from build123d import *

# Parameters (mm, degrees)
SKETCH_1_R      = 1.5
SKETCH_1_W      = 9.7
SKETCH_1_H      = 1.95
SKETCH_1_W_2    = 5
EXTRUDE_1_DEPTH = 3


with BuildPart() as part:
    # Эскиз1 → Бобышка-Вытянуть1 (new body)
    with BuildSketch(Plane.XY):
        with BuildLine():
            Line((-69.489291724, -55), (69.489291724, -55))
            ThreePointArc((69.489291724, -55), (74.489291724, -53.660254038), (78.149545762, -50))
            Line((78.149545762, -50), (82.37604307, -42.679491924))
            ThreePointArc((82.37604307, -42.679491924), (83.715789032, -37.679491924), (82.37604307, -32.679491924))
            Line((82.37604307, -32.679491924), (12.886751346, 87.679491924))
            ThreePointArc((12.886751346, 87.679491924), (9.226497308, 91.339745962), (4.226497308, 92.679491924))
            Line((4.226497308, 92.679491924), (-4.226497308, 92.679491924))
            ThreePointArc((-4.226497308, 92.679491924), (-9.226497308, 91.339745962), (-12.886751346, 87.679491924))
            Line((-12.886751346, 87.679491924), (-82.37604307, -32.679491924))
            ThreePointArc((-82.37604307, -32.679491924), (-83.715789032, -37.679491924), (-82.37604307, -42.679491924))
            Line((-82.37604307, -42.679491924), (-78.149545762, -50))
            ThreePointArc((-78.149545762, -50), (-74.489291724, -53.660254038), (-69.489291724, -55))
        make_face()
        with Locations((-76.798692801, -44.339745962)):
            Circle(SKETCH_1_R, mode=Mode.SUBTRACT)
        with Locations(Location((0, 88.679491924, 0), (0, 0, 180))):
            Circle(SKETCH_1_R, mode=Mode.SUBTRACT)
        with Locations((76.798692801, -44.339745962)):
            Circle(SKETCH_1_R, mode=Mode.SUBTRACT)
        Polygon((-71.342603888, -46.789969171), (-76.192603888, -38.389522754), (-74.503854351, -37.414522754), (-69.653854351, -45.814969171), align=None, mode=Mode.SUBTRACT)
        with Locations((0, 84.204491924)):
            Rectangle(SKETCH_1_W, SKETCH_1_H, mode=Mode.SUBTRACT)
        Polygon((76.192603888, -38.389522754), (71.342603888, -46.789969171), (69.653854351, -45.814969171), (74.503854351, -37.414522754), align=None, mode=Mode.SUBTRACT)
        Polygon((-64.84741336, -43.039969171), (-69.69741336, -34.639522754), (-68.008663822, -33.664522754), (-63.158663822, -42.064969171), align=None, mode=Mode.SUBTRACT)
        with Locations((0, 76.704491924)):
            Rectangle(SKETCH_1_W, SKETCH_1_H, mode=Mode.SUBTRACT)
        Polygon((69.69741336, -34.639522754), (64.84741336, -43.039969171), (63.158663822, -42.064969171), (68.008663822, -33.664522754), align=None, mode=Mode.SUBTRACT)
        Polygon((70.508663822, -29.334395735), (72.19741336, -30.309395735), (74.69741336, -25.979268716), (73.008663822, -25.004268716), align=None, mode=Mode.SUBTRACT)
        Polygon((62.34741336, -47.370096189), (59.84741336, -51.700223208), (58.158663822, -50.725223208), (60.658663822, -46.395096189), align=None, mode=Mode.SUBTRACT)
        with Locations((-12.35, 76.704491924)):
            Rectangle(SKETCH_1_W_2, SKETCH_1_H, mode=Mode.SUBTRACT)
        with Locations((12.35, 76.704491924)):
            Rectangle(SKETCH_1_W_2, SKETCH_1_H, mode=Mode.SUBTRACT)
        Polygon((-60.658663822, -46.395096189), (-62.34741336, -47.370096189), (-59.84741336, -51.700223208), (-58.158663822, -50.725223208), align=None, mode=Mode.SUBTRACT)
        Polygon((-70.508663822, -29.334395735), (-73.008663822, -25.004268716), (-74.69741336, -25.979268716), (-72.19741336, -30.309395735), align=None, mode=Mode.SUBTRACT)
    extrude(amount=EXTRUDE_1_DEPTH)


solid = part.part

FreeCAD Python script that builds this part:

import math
import FreeCAD as App
import Part
import Sketcher
from FreeCAD import Vector
Q = App.Units.Quantity

doc = App.newDocument("Part")
body = doc.addObject("PartDesign::Body", "Body")

sketch1 = body.newObject("Sketcher::SketchObject", "Sketch")
sketch1.AttachmentSupport = (doc.getObject("XY_Plane"), [""])
sketch1.MapMode = "FlatFace"
sketch1.addGeometry([
    Part.LineSegment(Vector(-69.5, -55, 0), Vector(69.5, -55, 0)),
    Part.ArcOfCircle(Part.Circle(Vector(69.5, -45, 0), Vector(0, 0, 1), 10), math.radians(-90), math.radians(-30)),
    Part.LineSegment(Vector(78.1, -50, 0), Vector(82.4, -42.7, 0)),
    Part.ArcOfCircle(Part.Circle(Vector(73.7, -37.7, 0), Vector(0, 0, 1), 10), math.radians(-30), math.radians(30)),
    Part.LineSegment(Vector(82.4, -32.7, 0), Vector(12.9, 87.7, 0)),
    Part.ArcOfCircle(Part.Circle(Vector(4.2, 82.7, 0), Vector(0, 0, 1), 10), math.radians(30), math.radians(90)),
    Part.LineSegment(Vector(4.2, 92.7, 0), Vector(-4.2, 92.7, 0)),
    Part.ArcOfCircle(Part.Circle(Vector(-4.2, 82.7, 0), Vector(0, 0, 1), 10), math.radians(90), math.radians(150)),
    Part.LineSegment(Vector(-12.9, 87.7, 0), Vector(-82.4, -32.7, 0)),
    Part.ArcOfCircle(Part.Circle(Vector(-73.7, -37.7, 0), Vector(0, 0, 1), 10), math.radians(150), math.radians(210)),
    Part.LineSegment(Vector(-82.4, -42.7, 0), Vector(-78.1, -50, 0)),
    Part.ArcOfCircle(Part.Circle(Vector(-69.5, -45, 0), Vector(0, 0, 1), 10), math.radians(-150), math.radians(-90)),
    Part.Circle(Vector(-76.8, -44.3, 0), Vector(0, 0, 1), 1.5),
    Part.LineSegment(Vector(-62.3, -47.4, 0), Vector(-60.7, -46.4, 0)),
    Part.LineSegment(Vector(-60.7, -46.4, 0), Vector(-58.2, -50.7, 0)),
    Part.LineSegment(Vector(-58.2, -50.7, 0), Vector(-59.8, -51.7, 0)),
    Part.LineSegment(Vector(-59.8, -51.7, 0), Vector(-62.3, -47.4, 0)),
    Part.LineSegment(Vector(-69.7, -45.8, 0), Vector(-71.3, -46.8, 0)),
    Part.LineSegment(Vector(-71.3, -46.8, 0), Vector(-76.2, -38.4, 0)),
    Part.LineSegment(Vector(-76.2, -38.4, 0), Vector(-74.5, -37.4, 0)),
    Part.LineSegment(Vector(-74.5, -37.4, 0), Vector(-69.7, -45.8, 0)),
    Part.LineSegment(Vector(-63.2, -42.1, 0), Vector(-64.8, -43, 0)),
    Part.LineSegment(Vector(-64.8, -43, 0), Vector(-69.7, -34.6, 0)),
    Part.LineSegment(Vector(-69.7, -34.6, 0), Vector(-68, -33.7, 0)),
    Part.LineSegment(Vector(-68, -33.7, 0), Vector(-63.2, -42.1, 0)),
    Part.LineSegment(Vector(-73, -25, 0), Vector(-70.5, -29.3, 0)),
    Part.LineSegment(Vector(-70.5, -29.3, 0), Vector(-72.2, -30.3, 0)),
    Part.LineSegment(Vector(-72.2, -30.3, 0), Vector(-74.7, -26, 0)),
    Part.LineSegment(Vector(-74.7, -26, 0), Vector(-73, -25, 0)),
    Part.LineSegment(Vector(60.7, -46.4, 0), Vector(62.3, -47.4, 0)),
    Part.LineSegment(Vector(62.3, -47.4, 0), Vector(59.8, -51.7, 0)),
    Part.LineSegment(Vector(59.8, -51.7, 0), Vector(58.2, -50.7, 0)),
    Part.LineSegment(Vector(58.2, -50.7, 0), Vector(60.7, -46.4, 0)),
    Part.Circle(Vector(76.8, -44.3, 0), Vector(0, 0, 1), 1.5),
    Part.LineSegment(Vector(68, -33.7, 0), Vector(69.7, -34.6, 0)),
    Part.LineSegment(Vector(69.7, -34.6, 0), Vector(64.8, -43, 0)),
    Part.LineSegment(Vector(64.8, -43, 0), Vector(63.2, -42.1, 0)),
    Part.LineSegment(Vector(63.2, -42.1, 0), Vector(68, -33.7, 0)),
    Part.LineSegment(Vector(74.5, -37.4, 0), Vector(76.2, -38.4, 0)),
    Part.LineSegment(Vector(76.2, -38.4, 0), Vector(71.3, -46.8, 0)),
    Part.LineSegment(Vector(71.3, -46.8, 0), Vector(69.7, -45.8, 0)),
    Part.LineSegment(Vector(69.7, -45.8, 0), Vector(74.5, -37.4, 0)),
    Part.LineSegment(Vector(72.2, -30.3, 0), Vector(70.5, -29.3, 0)),
    Part.LineSegment(Vector(70.5, -29.3, 0), Vector(73, -25, 0)),
    Part.LineSegment(Vector(73, -25, 0), Vector(74.7, -26, 0)),
    Part.LineSegment(Vector(74.7, -26, 0), Vector(72.2, -30.3, 0)),
    Part.LineSegment(Vector(-9.8, 75.7, 0), Vector(-14.8, 75.7, 0)),
    Part.LineSegment(Vector(-14.8, 75.7, 0), Vector(-14.8, 77.7, 0)),
    Part.LineSegment(Vector(-14.8, 77.7, 0), Vector(-9.8, 77.7, 0)),
    Part.LineSegment(Vector(-9.8, 77.7, 0), Vector(-9.8, 75.7, 0)),
    Part.LineSegment(Vector(4.8, 75.7, 0), Vector(-4.8, 75.7, 0)),
    Part.LineSegment(Vector(-4.8, 75.7, 0), Vector(-4.8, 77.7, 0)),
    Part.LineSegment(Vector(-4.8, 77.7, 0), Vector(4.8, 77.7, 0)),
    Part.LineSegment(Vector(4.8, 77.7, 0), Vector(4.8, 75.7, 0)),
    Part.LineSegment(Vector(14.8, 75.7, 0), Vector(9.8, 75.7, 0)),
    Part.LineSegment(Vector(9.8, 75.7, 0), Vector(9.8, 77.7, 0)),
    Part.LineSegment(Vector(9.8, 77.7, 0), Vector(14.8, 77.7, 0)),
    Part.LineSegment(Vector(14.8, 77.7, 0), Vector(14.8, 75.7, 0)),
    Part.LineSegment(Vector(4.8, 83.2, 0), Vector(-4.8, 83.2, 0)),
    Part.LineSegment(Vector(-4.8, 83.2, 0), Vector(-4.8, 85.2, 0)),
    Part.LineSegment(Vector(-4.8, 85.2, 0), Vector(4.8, 85.2, 0)),
    Part.LineSegment(Vector(4.8, 85.2, 0), Vector(4.8, 83.2, 0)),
    Part.Circle(Vector(0, 88.7, 0), Vector(0, 0, 1), 1.5),
], False)
sketch1.addConstraint([
    Sketcher.Constraint("Tangent", 0, 2, 1, 1),
    Sketcher.Constraint("Tangent", 1, 2, 2, 1),
    Sketcher.Constraint("Tangent", 2, 2, 3, 1),
    Sketcher.Constraint("Tangent", 3, 2, 4, 1),
    Sketcher.Constraint("Tangent", 4, 2, 5, 1),
    Sketcher.Constraint("Tangent", 5, 2, 6, 1),
    Sketcher.Constraint("Tangent", 6, 2, 7, 1),
    Sketcher.Constraint("Tangent", 7, 2, 8, 1),
    Sketcher.Constraint("Tangent", 8, 2, 9, 1),
    Sketcher.Constraint("Tangent", 9, 2, 10, 1),
    Sketcher.Constraint("Tangent", 10, 2, 11, 1),
    Sketcher.Constraint("Tangent", 11, 2, 0, 1),
    Sketcher.Constraint("Coincident", 13, 2, 14, 1),
    Sketcher.Constraint("Coincident", 14, 2, 15, 1),
    Sketcher.Constraint("Coincident", 15, 2, 16, 1),
    Sketcher.Constraint("Coincident", 16, 2, 13, 1),
    Sketcher.Constraint("Coincident", 17, 2, 18, 1),
    Sketcher.Constraint("Coincident", 18, 2, 19, 1),
    Sketcher.Constraint("Coincident", 19, 2, 20, 1),
    Sketcher.Constraint("Coincident", 20, 2, 17, 1),
    Sketcher.Constraint("Coincident", 21, 2, 22, 1),
    Sketcher.Constraint("Coincident", 22, 2, 23, 1),
    Sketcher.Constraint("Coincident", 23, 2, 24, 1),
    Sketcher.Constraint("Coincident", 24, 2, 21, 1),
    Sketcher.Constraint("Coincident", 25, 2, 26, 1),
    Sketcher.Constraint("Coincident", 26, 2, 27, 1),
    Sketcher.Constraint("Coincident", 27, 2, 28, 1),
    Sketcher.Constraint("Coincident", 28, 2, 25, 1),
    Sketcher.Constraint("Coincident", 29, 2, 30, 1),
    Sketcher.Constraint("Coincident", 30, 2, 31, 1),
    Sketcher.Constraint("Coincident", 31, 2, 32, 1),
    Sketcher.Constraint("Coincident", 32, 2, 29, 1),
    Sketcher.Constraint("Coincident", 34, 2, 35, 1),
    Sketcher.Constraint("Coincident", 35, 2, 36, 1),
    Sketcher.Constraint("Coincident", 36, 2, 37, 1),
    Sketcher.Constraint("Coincident", 37, 2, 34, 1),
    Sketcher.Constraint("Coincident", 38, 2, 39, 1),
    Sketcher.Constraint("Coincident", 39, 2, 40, 1),
    Sketcher.Constraint("Coincident", 40, 2, 41, 1),
    Sketcher.Constraint("Coincident", 41, 2, 38, 1),
    Sketcher.Constraint("Coincident", 42, 2, 43, 1),
    Sketcher.Constraint("Coincident", 43, 2, 44, 1),
    Sketcher.Constraint("Coincident", 44, 2, 45, 1),
    Sketcher.Constraint("Coincident", 45, 2, 42, 1),
    Sketcher.Constraint("Coincident", 46, 2, 47, 1),
    Sketcher.Constraint("Coincident", 47, 2, 48, 1),
    Sketcher.Constraint("Coincident", 48, 2, 49, 1),
    Sketcher.Constraint("Coincident", 49, 2, 46, 1),
    Sketcher.Constraint("Coincident", 50, 2, 51, 1),
    Sketcher.Constraint("Coincident", 51, 2, 52, 1),
    Sketcher.Constraint("Coincident", 52, 2, 53, 1),
    Sketcher.Constraint("Coincident", 53, 2, 50, 1),
    Sketcher.Constraint("Coincident", 54, 2, 55, 1),
    Sketcher.Constraint("Coincident", 55, 2, 56, 1),
    Sketcher.Constraint("Coincident", 56, 2, 57, 1),
    Sketcher.Constraint("Coincident", 57, 2, 54, 1),
    Sketcher.Constraint("Coincident", 58, 2, 59, 1),
    Sketcher.Constraint("Coincident", 59, 2, 60, 1),
    Sketcher.Constraint("Coincident", 60, 2, 61, 1),
    Sketcher.Constraint("Coincident", 61, 2, 58, 1),
    Sketcher.Constraint("Horizontal", 0),
    Sketcher.Constraint("Horizontal", 6),
    Sketcher.Constraint("Horizontal", 46),
    Sketcher.Constraint("Vertical", 47),
    Sketcher.Constraint("Horizontal", 48),
    Sketcher.Constraint("Vertical", 49),
    Sketcher.Constraint("Horizontal", 50),
    Sketcher.Constraint("Vertical", 51),
    Sketcher.Constraint("Horizontal", 52),
    Sketcher.Constraint("Vertical", 53),
    Sketcher.Constraint("Horizontal", 54),
    Sketcher.Constraint("Vertical", 55),
    Sketcher.Constraint("Horizontal", 56),
    Sketcher.Constraint("Vertical", 57),
    Sketcher.Constraint("Horizontal", 58),
    Sketcher.Constraint("Vertical", 59),
    Sketcher.Constraint("Horizontal", 60),
    Sketcher.Constraint("Vertical", 61),
    Sketcher.Constraint("Equal", 1, 3),
    Sketcher.Constraint("Equal", 3, 5),
    Sketcher.Constraint("Equal", 5, 7),
    Sketcher.Constraint("Equal", 7, 9),
    Sketcher.Constraint("Equal", 9, 11),
    Sketcher.Constraint("Equal", 12, 33),
    Sketcher.Constraint("Equal", 33, 62),
    Sketcher.Constraint("Symmetric", 3, 3, 9, 3, -2),
    Sketcher.Constraint("Symmetric", 12, 3, 33, 3, -2),
    Sketcher.Constraint("Symmetric", 16, 2, 29, 2, -2),
    Sketcher.Constraint("Symmetric", 15, 2, 30, 2, -2),
    Sketcher.Constraint("Symmetric", 14, 2, 31, 2, -2),
    Sketcher.Constraint("Symmetric", 13, 2, 32, 2, -2),
    Sketcher.Constraint("Symmetric", 22, 2, 34, 2, -2),
    Sketcher.Constraint("Symmetric", 21, 2, 35, 2, -2),
    Sketcher.Constraint("Symmetric", 24, 2, 36, 2, -2),
    Sketcher.Constraint("Symmetric", 23, 2, 37, 2, -2),
    Sketcher.Constraint("Symmetric", 18, 2, 38, 2, -2),
    Sketcher.Constraint("Symmetric", 17, 2, 39, 2, -2),
    Sketcher.Constraint("Symmetric", 20, 2, 40, 2, -2),
    Sketcher.Constraint("Symmetric", 19, 2, 41, 2, -2),
    Sketcher.Constraint("Symmetric", 25, 2, 42, 2, -2),
    Sketcher.Constraint("Symmetric", 28, 2, 43, 2, -2),
    Sketcher.Constraint("Symmetric", 27, 2, 44, 2, -2),
    Sketcher.Constraint("Symmetric", 26, 2, 45, 2, -2),
    Sketcher.Constraint("Symmetric", 49, 2, 54, 2, -2),
    Sketcher.Constraint("Symmetric", 47, 2, 56, 2, -2),
    Sketcher.Constraint("PointOnObject", 62, 3, -2),
    Sketcher.Constraint("Parallel", 2, 8),
    Sketcher.Constraint("Parallel", 4, 10),
    Sketcher.Constraint("Perpendicular", 10, 13),
    Sketcher.Constraint("Perpendicular", 13, 14),
    Sketcher.Constraint("Perpendicular", 14, 15),
    Sketcher.Constraint("Perpendicular", 15, 16),
    Sketcher.Constraint("Perpendicular", 16, 17),
    Sketcher.Constraint("Perpendicular", 17, 18),
    Sketcher.Constraint("Perpendicular", 18, 19),
    Sketcher.Constraint("Perpendicular", 19, 20),
    Sketcher.Constraint("Perpendicular", 20, 21),
    Sketcher.Constraint("Perpendicular", 21, 22),
    Sketcher.Constraint("Perpendicular", 22, 23),
    Sketcher.Constraint("Perpendicular", 23, 24),
    Sketcher.Constraint("Parallel", 24, 25),
    Sketcher.Constraint("Perpendicular", 25, 26),
    Sketcher.Constraint("Perpendicular", 26, 27),
    Sketcher.Constraint("Perpendicular", 27, 28),
    Sketcher.Constraint("Perpendicular", 8, 29),
    Sketcher.Constraint("Horizontal", 49, 2, 50, 2),
    Sketcher.Constraint("Horizontal", 48, 2, 51, 2),
    Sketcher.Constraint("Vertical", 51, 2, 58, 2),
    Sketcher.Constraint("Vertical", 53, 2, 60, 2),
    Sketcher.Constraint("Equal", 57, 59),
    Sketcher.Constraint("Equal", 15, 17),
    Sketcher.Constraint("Equal", 19, 21),
    Sketcher.Constraint("Equal", 20, 22),
    Sketcher.Constraint("Equal", 16, 25),
    Sketcher.Constraint("Equal", 23, 26),
    Sketcher.Constraint("Diameter", 12, 3.0),
    Sketcher.Constraint("Radius", 1, 10.0),
    Sketcher.Constraint("DistanceX", 46, 2, 46, 1, 5.0),
    Sketcher.Constraint("Angle", 2, Q("60 deg")),
    Sketcher.Constraint("Distance", 14, 5.0),
    Sketcher.Constraint("DistanceX", 50, 2, 50, 1, 9.7),
    Sketcher.Constraint("DistanceY", 1, 3, -1, 1, 45.0),
    Sketcher.Constraint("Distance", 18, 9.7),
    Sketcher.Constraint("DistanceY", 47, 1, 47, 2, 1.95),
    Sketcher.Constraint("Distance", 13, 1.95),
    Sketcher.Constraint("DistanceX", 46, 2, -1, 1, 14.85),
    Sketcher.Constraint("DistanceX", 50, 2, -1, 1, 4.85),
    Sketcher.Constraint("DistanceX", 0, 1, 0, 2, 138.978583),
    Sketcher.Constraint("DistanceX", 6, 2, 6, 1, 8.452995),
    Sketcher.Constraint("DistanceX", -1, 1, 3, 3, 73.715789),
    Sketcher.Constraint("DistanceY", -1, 1, 62, 3, 88.679492),
    Sketcher.Constraint("DistanceY", 17, 2, -1, 1, 46.789969),
    Sketcher.Constraint("DistanceY", 21, 2, -1, 1, 43.039969),
    Sketcher.Constraint("DistanceY", 27, 2, -1, 1, 25.979269),
    Sketcher.Constraint("DistanceY", -1, 1, 46, 2, 75.729492),
    Sketcher.Constraint("DistanceY", -1, 1, 58, 2, 83.229492),
    Sketcher.Constraint("DistanceX", 12, 3, -1, 1, 76.798693),
    Sketcher.Constraint("DistanceY", 12, 3, -1, 1, 44.339746),
    Sketcher.Constraint("DistanceX", 13, 2, -1, 1, 60.658664),
    Sketcher.Constraint("DistanceY", 13, 2, -1, 1, 46.395096),
    Sketcher.Constraint("DistanceX", 17, 2, -1, 1, 71.342604),
    Sketcher.Constraint("DistanceX", 21, 2, -1, 1, 64.847413),
    Sketcher.Constraint("DistanceX", 25, 2, -1, 1, 70.508664),
])
pad1 = body.newObject("PartDesign::Pad", "Pad")
pad1.Profile = sketch1
pad1.Length = 3

doc.recompute()
